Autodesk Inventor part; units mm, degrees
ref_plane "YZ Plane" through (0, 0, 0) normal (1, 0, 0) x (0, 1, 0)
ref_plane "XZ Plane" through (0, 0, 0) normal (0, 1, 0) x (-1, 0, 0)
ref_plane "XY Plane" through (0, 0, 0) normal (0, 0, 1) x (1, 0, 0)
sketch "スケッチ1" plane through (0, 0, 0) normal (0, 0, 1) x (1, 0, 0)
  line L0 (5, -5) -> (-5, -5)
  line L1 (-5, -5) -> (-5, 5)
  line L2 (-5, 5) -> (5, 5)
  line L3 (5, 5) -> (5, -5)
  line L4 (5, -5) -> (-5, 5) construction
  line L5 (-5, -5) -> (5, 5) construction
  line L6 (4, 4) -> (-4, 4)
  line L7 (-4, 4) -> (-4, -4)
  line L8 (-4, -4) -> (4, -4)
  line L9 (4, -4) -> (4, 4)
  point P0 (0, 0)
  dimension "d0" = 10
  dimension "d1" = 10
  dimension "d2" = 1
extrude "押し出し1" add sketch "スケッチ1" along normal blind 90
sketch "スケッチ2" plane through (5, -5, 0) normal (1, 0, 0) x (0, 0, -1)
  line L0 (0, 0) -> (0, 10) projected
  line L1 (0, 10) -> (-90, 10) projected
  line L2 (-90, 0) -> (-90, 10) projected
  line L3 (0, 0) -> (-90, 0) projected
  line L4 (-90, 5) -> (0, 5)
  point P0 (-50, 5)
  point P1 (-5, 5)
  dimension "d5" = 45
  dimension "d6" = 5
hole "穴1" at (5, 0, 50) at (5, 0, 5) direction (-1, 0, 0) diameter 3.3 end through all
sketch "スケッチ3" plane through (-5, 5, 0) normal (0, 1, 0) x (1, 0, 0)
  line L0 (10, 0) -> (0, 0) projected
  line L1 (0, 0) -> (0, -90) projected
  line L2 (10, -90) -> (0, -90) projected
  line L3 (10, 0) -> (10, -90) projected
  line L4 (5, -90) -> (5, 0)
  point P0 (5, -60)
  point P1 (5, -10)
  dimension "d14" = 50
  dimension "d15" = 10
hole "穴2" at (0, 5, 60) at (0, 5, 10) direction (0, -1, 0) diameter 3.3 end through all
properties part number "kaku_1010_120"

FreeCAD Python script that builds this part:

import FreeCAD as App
import Part
import Sketcher
from FreeCAD import Vector
Q = App.Units.Quantity

doc = App.newDocument("Part")
body = doc.addObject("PartDesign::Body", "Body")

# Sketch on XY plane
sketch1 = body.newObject("Sketcher::SketchObject", "Sketch")
sketch1.AttachmentSupport = (doc.getObject("XY_Plane"), [""])
sketch1.MapMode = "FlatFace"
sketch1.addGeometry([
    Part.LineSegment(Vector(-5, -5, 0), Vector(5, -5, 0)),  # 0
    Part.LineSegment(Vector(5, -5, 0), Vector(5, 5, 0)),  # 1
    Part.LineSegment(Vector(5, 5, 0), Vector(-5, 5, 0)),  # 2
    Part.LineSegment(Vector(-5, 5, 0), Vector(-5, -5, 0)),  # 3
    Part.LineSegment(Vector(-4, 4, 0), Vector(4, 4, 0)),  # 4
    Part.LineSegment(Vector(4, 4, 0), Vector(4, -4, 0)),  # 5
    Part.LineSegment(Vector(4, -4, 0), Vector(-4, -4, 0)),  # 6
    Part.LineSegment(Vector(-4, -4, 0), Vector(-4, 4, 0)),  # 7
], False)
sketch1.addConstraint([
    Sketcher.Constraint("Coincident", 0, 2, 1, 1),
    Sketcher.Constraint("Coincident", 1, 2, 2, 1),
    Sketcher.Constraint("Coincident", 2, 2, 3, 1),
    Sketcher.Constraint("Coincident", 3, 2, 0, 1),
    Sketcher.Constraint("Coincident", 4, 2, 5, 1),
    Sketcher.Constraint("Coincident", 5, 2, 6, 1),
    Sketcher.Constraint("Coincident", 6, 2, 7, 1),
    Sketcher.Constraint("Coincident", 7, 2, 4, 1),
    Sketcher.Constraint("Horizontal", 0),
    Sketcher.Constraint("Vertical", 1),
    Sketcher.Constraint("Horizontal", 2),
    Sketcher.Constraint("Vertical", 3),
    Sketcher.Constraint("Horizontal", 4),
    Sketcher.Constraint("Vertical", 5),
    Sketcher.Constraint("Horizontal", 6),
    Sketcher.Constraint("Vertical", 7),
    Sketcher.Constraint("Symmetric", 0, 2, 2, 2, -1, 1),
    Sketcher.Constraint("Symmetric", 4, 2, 6, 2, -1, 1),
    Sketcher.Constraint("Equal", 2, 1),
    Sketcher.Constraint("Equal", 6, 5),
    Sketcher.Constraint("DistanceX", 0, 1, 0, 2, Q("10 mm")),
    Sketcher.Constraint("DistanceX", 4, 2, 1, 2, Q("1 mm")),
])
pad1 = body.newObject("PartDesign::Pad", "Pad")
pad1.Profile = sketch1
pad1.Length = 90

# Sketch on YZ plane
sketch2 = body.newObject("Sketcher::SketchObject", "Sketch001")
sketch2.AttachmentSupport = (doc.getObject("YZ_Plane"), [""])
sketch2.MapMode = "FlatFace"
sketch2.AttachmentOffset = App.Placement(Vector(0, 0, 5), App.Rotation())
sketch2.addGeometry([
    Part.Circle(Vector(0, 50, 0), Vector(0, 0, 1), 1.6),
    Part.Circle(Vector(0, 5, 0), Vector(0, 0, 1), 1.6),
], False)
sketch2.addConstraint([
    Sketcher.Constraint("Equal", 0, 1),
    Sketcher.Constraint("PointOnObject", 0, 3, -2),
    Sketcher.Constraint("PointOnObject", 1, 3, -2),
    Sketcher.Constraint("Diameter", 0, Q("3.3 mm")),
    Sketcher.Constraint("DistanceY", -1, 1, 0, 3, Q("50 mm")),
    Sketcher.Constraint("DistanceY", -1, 1, 1, 3, Q("5 mm")),
])
doc.recompute()
hole = body.newObject("PartDesign::Hole", "Hole")
hole.Profile = sketch2
hole.ThreadType = "None"
hole.Diameter = 3.3
hole.DepthType = "ThroughAll"

# Sketch on XZ plane
sketch3 = body.newObject("Sketcher::SketchObject", "Sketch002")
sketch3.AttachmentSupport = (doc.getObject("XZ_Plane"), [""])
sketch3.MapMode = "FlatFace"
sketch3.AttachmentOffset = App.Placement(Vector(0, 0, -5), App.Rotation())
sketch3.addGeometry([
    Part.Circle(Vector(0, 60, 0), Vector(0, 0, 1), 1.6),
    Part.Circle(Vector(0, 10, 0), Vector(0, 0, 1), 1.6),
], False)
sketch3.addConstraint([
    Sketcher.Constraint("Equal", 0, 1),
    Sketcher.Constraint("PointOnObject", 0, 3, -2),
    Sketcher.Constraint("PointOnObject", 1, 3, -2),
    Sketcher.Constraint("Diameter", 0, Q("3.3 mm")),
    Sketcher.Constraint("DistanceY", -1, 1, 0, 3, Q("60 mm")),
    Sketcher.Constraint("DistanceY", -1, 1, 1, 3, Q("10 mm")),
])
doc.recompute()
hole2 = body.newObject("PartDesign::Hole", "Hole001")
hole2.Profile = sketch3
hole2.ThreadType = "None"
hole2.Diameter = 3.3
hole2.DepthType = "ThroughAll"
hole2.Reversed = True

doc.recompute()
